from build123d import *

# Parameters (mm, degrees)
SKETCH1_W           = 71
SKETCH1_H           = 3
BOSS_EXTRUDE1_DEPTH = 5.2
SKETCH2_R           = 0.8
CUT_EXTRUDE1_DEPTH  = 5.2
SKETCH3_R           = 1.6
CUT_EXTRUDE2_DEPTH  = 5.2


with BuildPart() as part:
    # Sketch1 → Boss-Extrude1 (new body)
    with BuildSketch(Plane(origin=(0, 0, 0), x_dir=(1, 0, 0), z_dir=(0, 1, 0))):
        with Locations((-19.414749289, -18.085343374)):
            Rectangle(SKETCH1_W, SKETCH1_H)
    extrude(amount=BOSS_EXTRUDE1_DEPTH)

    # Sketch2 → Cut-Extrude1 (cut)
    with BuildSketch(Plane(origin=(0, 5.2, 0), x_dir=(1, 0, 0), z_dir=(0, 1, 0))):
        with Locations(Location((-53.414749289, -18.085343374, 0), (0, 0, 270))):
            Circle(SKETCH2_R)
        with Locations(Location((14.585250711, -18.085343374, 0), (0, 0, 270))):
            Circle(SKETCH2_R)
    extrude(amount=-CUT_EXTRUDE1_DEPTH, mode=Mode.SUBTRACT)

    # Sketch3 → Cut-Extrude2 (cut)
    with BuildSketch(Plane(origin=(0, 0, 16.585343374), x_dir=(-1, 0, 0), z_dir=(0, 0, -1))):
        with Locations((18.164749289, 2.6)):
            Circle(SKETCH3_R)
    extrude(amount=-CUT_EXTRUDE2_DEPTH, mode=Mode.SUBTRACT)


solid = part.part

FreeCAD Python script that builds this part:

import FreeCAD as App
import Part
import Sketcher
from FreeCAD import Vector

doc = App.newDocument("Part")
body = doc.addObject("PartDesign::Body", "Body")

sketch1 = doc.addObject("Sketcher::SketchObject", "Sketch")
body.addObject(sketch1)
sketch1.AttachmentSupport = (doc.XZ_Plane, [""])
sketch1.MapMode = "FlatFace"
sketch1.addGeometry([
    Part.LineSegment(Vector(-54.914749, 16.585343, 0), Vector(-54.914749, 19.585343, 0)),
    Part.LineSegment(Vector(-54.914749, 19.585343, 0), Vector(16.085251, 19.585343, 0)),
    Part.LineSegment(Vector(16.085251, 19.585343, 0), Vector(16.085251, 16.585343, 0)),
    Part.LineSegment(Vector(16.085251, 16.585343, 0), Vector(-54.914749, 16.585343, 0)),
], False)
sketch1.addConstraint([
    Sketcher.Constraint("Coincident", 0, 2, 1, 1),
    Sketcher.Constraint("Coincident", 1, 2, 2, 1),
    Sketcher.Constraint("Coincident", 2, 2, 3, 1),
    Sketcher.Constraint("Coincident", 3, 2, 0, 1),
    Sketcher.Constraint("Vertical", 0),
    Sketcher.Constraint("Horizontal", 1),
    Sketcher.Constraint("Vertical", 2),
    Sketcher.Constraint("Horizontal", 3),
    Sketcher.Constraint("DistanceX", 1, 1, 1, 2, 71.0),
    Sketcher.Constraint("DistanceY", 0, 1, 0, 2, 3.0),
    Sketcher.Constraint("DistanceX", 0, 2, -1, 1, 54.914749),
    Sketcher.Constraint("DistanceY", -1, 1, 0, 2, 19.585343),
])
pad1 = doc.addObject("PartDesign::Pad", "Pad")
body.addObject(pad1)
pad1.Profile = sketch1
pad1.Length = 5.2
pad1.Reversed = True

sketch2 = doc.addObject("Sketcher::SketchObject", "Sketch001")
body.addObject(sketch2)
sketch2.AttachmentSupport = (doc.XZ_Plane, [""])
sketch2.MapMode = "FlatFace"
sketch2.AttachmentOffset = App.Placement(Vector(0, 0, -5.2), App.Rotation())
sketch2.addGeometry([
    Part.Circle(Vector(-53.414749, 18.085343, 0), Vector(0, 0, 1), 0.8),
    Part.Circle(Vector(14.585251, 18.085343, 0), Vector(0, 0, 1), 0.8),
], False)
sketch2.addConstraint([
    Sketcher.Constraint("Equal", 0, 1),
    Sketcher.Constraint("Horizontal", 0, 3, 1, 3),
    Sketcher.Constraint("Diameter", 0, 1.6),
    Sketcher.Constraint("DistanceX", 0, 3, 1, 3, 68.0),
    Sketcher.Constraint("DistanceX", 0, 3, -1, 1, 53.414749),
    Sketcher.Constraint("DistanceY", -1, 1, 0, 3, 18.085343),
])
pocket1 = doc.addObject("PartDesign::Pocket", "Pocket")
body.addObject(pocket1)
pocket1.Profile = sketch2
pocket1.Length = 5.2
pocket1.Reversed = True

sketch3 = doc.addObject("Sketcher::SketchObject", "Sketch002")
body.addObject(sketch3)
sketch3.AttachmentSupport = (doc.XY_Plane, [""])
sketch3.MapMode = "FlatFace"
sketch3.AttachmentOffset = App.Placement(Vector(0, 0, 16.585343), App.Rotation())
sketch3.addGeometry(Part.Circle(Vector(-18.164749, 2.6, 0), Vector(0, 0, 1), 1.6), False)
sketch3.addConstraint([
    Sketcher.Constraint("Diameter", 0, 3.2),
    Sketcher.Constraint("DistanceY", -1, 1, 0, 3, 2.6),
    Sketcher.Constraint("DistanceX", 0, 3, -1, 1, 18.164749),
])
pocket2 = doc.addObject("PartDesign::Pocket", "Pocket001")
body.addObject(pocket2)
pocket2.Profile = sketch3
pocket2.Length = 5.2
pocket2.Reversed = True

doc.recompute()
